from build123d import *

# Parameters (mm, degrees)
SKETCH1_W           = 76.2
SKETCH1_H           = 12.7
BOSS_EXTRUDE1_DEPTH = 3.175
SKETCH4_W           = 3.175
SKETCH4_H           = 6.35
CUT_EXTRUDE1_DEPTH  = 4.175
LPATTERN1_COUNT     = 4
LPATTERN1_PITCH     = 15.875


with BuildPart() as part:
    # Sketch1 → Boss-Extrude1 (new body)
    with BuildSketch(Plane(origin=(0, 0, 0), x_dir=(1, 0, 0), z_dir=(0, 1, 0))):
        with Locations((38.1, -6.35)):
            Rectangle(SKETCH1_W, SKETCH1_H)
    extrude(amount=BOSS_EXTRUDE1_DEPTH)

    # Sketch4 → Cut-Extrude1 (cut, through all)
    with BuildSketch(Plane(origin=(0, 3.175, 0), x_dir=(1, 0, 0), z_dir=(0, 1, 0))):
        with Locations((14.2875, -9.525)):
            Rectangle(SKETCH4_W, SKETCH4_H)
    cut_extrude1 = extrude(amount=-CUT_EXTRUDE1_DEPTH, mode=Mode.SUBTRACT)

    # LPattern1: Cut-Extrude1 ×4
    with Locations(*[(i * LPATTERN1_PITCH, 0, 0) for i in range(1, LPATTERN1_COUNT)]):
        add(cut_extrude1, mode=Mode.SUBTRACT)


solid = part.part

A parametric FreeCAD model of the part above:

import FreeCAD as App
import Part
import Sketcher
from FreeCAD import Vector
Q = App.Units.Quantity

doc = App.newDocument("Part")
body = doc.addObject("PartDesign::Body", "Body")

sketch1 = body.newObject("Sketcher::SketchObject", "Sketch")
sketch1.AttachmentSupport = (doc.getObject("XZ_Plane"), [""])
sketch1.MapMode = "FlatFace"
sketch1.addGeometry(Part.LineSegment(Vector(0, 0, 0), Vector(0, 13, 0)), False)
sketch1.addGeometry(Part.LineSegment(Vector(0, 13, 0), Vector(76, 13, 0)), False)
sketch1.addGeometry(Part.LineSegment(Vector(76, 13, 0), Vector(76, 0, 0)), False)
sketch1.addGeometry(Part.LineSegment(Vector(76, 0, 0), Vector(0, 0, 0)), False)
sketch1.addConstraint(Sketcher.Constraint("Coincident", 0, 2, 1, 1))
sketch1.addConstraint(Sketcher.Constraint("Coincident", 1, 2, 2, 1))
sketch1.addConstraint(Sketcher.Constraint("Coincident", 2, 2, 3, 1))
sketch1.addConstraint(Sketcher.Constraint("Coincident", 3, 2, 0, 1))
sketch1.addConstraint(Sketcher.Constraint("Vertical", 0))
sketch1.addConstraint(Sketcher.Constraint("Horizontal", 1))
sketch1.addConstraint(Sketcher.Constraint("Vertical", 2))
sketch1.addConstraint(Sketcher.Constraint("Horizontal", 3))
sketch1.addConstraint(Sketcher.Constraint("Coincident", 3, 2, -1, 1))
sketch1.addConstraint(Sketcher.Constraint("DistanceX", 1, 1, 1, 2, Q("3 in")))
sketch1.addConstraint(Sketcher.Constraint("DistanceY", 0, 1, 0, 2, Q("0.5 in")))
pad1 = body.newObject("PartDesign::Pad", "Pad")
pad1.Profile = sketch1
pad1.Length = Q("0.125 in")
pad1.Reversed = True

sketch2 = body.newObject("Sketcher::SketchObject", "Sketch001")
sketch2.AttachmentSupport = (doc.getObject("XZ_Plane"), [""])
sketch2.MapMode = "FlatFace"
sketch2.AttachmentOffset = App.Placement(Vector(0, 0, -0.125 * 25.4), App.Rotation())
sketch2.addGeometry(Part.LineSegment(Vector(12.7, 6.3, 0), Vector(12.7, 12.7, 0)), False)
sketch2.addGeometry(Part.LineSegment(Vector(12.7, 12.7, 0), Vector(15.9, 12.7, 0)), False)
sketch2.addGeometry(Part.LineSegment(Vector(15.9, 12.7, 0), Vector(15.9, 6.3, 0)), False)
sketch2.addGeometry(Part.LineSegment(Vector(15.9, 6.3, 0), Vector(12.7, 6.3, 0)), False)
sketch2.addConstraint(Sketcher.Constraint("Coincident", 0, 2, 1, 1))
sketch2.addConstraint(Sketcher.Constraint("Coincident", 1, 2, 2, 1))
sketch2.addConstraint(Sketcher.Constraint("Coincident", 2, 2, 3, 1))
sketch2.addConstraint(Sketcher.Constraint("Coincident", 3, 2, 0, 1))
sketch2.addConstraint(Sketcher.Constraint("Vertical", 0))
sketch2.addConstraint(Sketcher.Constraint("Horizontal", 1))
sketch2.addConstraint(Sketcher.Constraint("Vertical", 2))
sketch2.addConstraint(Sketcher.Constraint("Horizontal", 3))
sketch2.addConstraint(Sketcher.Constraint("DistanceY", 0, 1, 0, 2, Q("0.25 in")))
sketch2.addConstraint(Sketcher.Constraint("DistanceX", -1, 1, 0, 2, Q("0.5 in")))
sketch2.addConstraint(Sketcher.Constraint("DistanceY", -1, 1, 0, 2, Q("0.5 in")))
sketch2.addConstraint(Sketcher.Constraint("DistanceX", 1, 1, 1, 2, Q("0.125 in")))
pocket1 = body.newObject("PartDesign::Pocket", "Pocket")
pocket1.Profile = sketch2
pocket1.Type = "ThroughAll"
pocket1.Reversed = True
doc.recompute()

linearpattern = body.newObject("PartDesign::LinearPattern", "LinearPattern")
linearpattern.Originals = [pocket1]
linearpattern.Direction = (doc.getObject("X_Axis"), [""])
linearpattern.Mode = "offset"
linearpattern.Offset = Q("0.625 in")
linearpattern.Occurrences = 4
body.Tip = linearpattern

doc.recompute()
